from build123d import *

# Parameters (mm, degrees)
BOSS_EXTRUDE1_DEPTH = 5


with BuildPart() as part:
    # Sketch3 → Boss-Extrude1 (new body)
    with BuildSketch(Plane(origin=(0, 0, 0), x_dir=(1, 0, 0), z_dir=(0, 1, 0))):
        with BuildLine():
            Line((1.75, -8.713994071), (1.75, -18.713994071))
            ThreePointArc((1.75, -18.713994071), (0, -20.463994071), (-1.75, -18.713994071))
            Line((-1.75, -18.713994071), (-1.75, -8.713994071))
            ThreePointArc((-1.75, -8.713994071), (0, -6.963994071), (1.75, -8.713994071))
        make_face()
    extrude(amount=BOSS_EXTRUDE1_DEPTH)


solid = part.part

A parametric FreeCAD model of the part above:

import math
import FreeCAD as App
import Part
import Sketcher
from FreeCAD import Vector

doc = App.newDocument("Part")
params = doc.addObject("Spreadsheet::Sheet", "Params")
for row, (alias, value) in enumerate([
    ("sketch1_height", "10 mm"),
    ("sketch1_radius", "1.75 mm"),
    ("pad1_length", "5 mm"),
], start=1):
    params.set(f"A{row}", alias)
    params.set(f"B{row}", "=" + value)
    params.setAlias(f"B{row}", alias)

body = doc.addObject("PartDesign::Body", "Body")

# Sketch on XZ plane
sketch1 = body.newObject("Sketcher::SketchObject", "Sketch")
sketch1.AttachmentSupport = (doc.getObject("XZ_Plane"), [""])
sketch1.MapMode = "FlatFace"
sketch1.addGeometry([
    Part.LineSegment(Vector(1.8, 18.7, 0), Vector(1.8, 8.7, 0)),
    Part.ArcOfCircle(Part.Circle(Vector(0, 8.7, 0), Vector(0, 0, 1), 1.8), math.radians(180), math.radians(360)),
    Part.LineSegment(Vector(-1.8, 8.7, 0), Vector(-1.8, 18.7, 0)),
    Part.ArcOfCircle(Part.Circle(Vector(0, 18.7, 0), Vector(0, 0, 1), 1.8), math.radians(0), math.radians(180)),
], False)
sketch1.addConstraint([
    Sketcher.Constraint("Tangent", 0, 2, 1, 2),
    Sketcher.Constraint("Tangent", 1, 1, 2, 1),
    Sketcher.Constraint("Tangent", 2, 2, 3, 2),
    Sketcher.Constraint("Tangent", 3, 1, 0, 1),
    Sketcher.Constraint("Vertical", 0),
    Sketcher.Constraint("Vertical", 2),
    Sketcher.Constraint("PointOnObject", 1, 3, -2),
    Sketcher.Constraint("DistanceY", 0, 2, 0, 1, 10.0),
    Sketcher.Constraint("Radius", 1, 1.75),
    Sketcher.Constraint("DistanceY", -1, 1, 1, 3, 8.713994),
])
sketch1.setExpression("Constraints[7]", "Params.sketch1_height")
sketch1.setExpression("Constraints[8]", "Params.sketch1_radius")
pad1 = body.newObject("PartDesign::Pad", "Pad")
pad1.Profile = sketch1
pad1.setExpression("Length", "Params.pad1_length")
pad1.Reversed = True

doc.recompute()
